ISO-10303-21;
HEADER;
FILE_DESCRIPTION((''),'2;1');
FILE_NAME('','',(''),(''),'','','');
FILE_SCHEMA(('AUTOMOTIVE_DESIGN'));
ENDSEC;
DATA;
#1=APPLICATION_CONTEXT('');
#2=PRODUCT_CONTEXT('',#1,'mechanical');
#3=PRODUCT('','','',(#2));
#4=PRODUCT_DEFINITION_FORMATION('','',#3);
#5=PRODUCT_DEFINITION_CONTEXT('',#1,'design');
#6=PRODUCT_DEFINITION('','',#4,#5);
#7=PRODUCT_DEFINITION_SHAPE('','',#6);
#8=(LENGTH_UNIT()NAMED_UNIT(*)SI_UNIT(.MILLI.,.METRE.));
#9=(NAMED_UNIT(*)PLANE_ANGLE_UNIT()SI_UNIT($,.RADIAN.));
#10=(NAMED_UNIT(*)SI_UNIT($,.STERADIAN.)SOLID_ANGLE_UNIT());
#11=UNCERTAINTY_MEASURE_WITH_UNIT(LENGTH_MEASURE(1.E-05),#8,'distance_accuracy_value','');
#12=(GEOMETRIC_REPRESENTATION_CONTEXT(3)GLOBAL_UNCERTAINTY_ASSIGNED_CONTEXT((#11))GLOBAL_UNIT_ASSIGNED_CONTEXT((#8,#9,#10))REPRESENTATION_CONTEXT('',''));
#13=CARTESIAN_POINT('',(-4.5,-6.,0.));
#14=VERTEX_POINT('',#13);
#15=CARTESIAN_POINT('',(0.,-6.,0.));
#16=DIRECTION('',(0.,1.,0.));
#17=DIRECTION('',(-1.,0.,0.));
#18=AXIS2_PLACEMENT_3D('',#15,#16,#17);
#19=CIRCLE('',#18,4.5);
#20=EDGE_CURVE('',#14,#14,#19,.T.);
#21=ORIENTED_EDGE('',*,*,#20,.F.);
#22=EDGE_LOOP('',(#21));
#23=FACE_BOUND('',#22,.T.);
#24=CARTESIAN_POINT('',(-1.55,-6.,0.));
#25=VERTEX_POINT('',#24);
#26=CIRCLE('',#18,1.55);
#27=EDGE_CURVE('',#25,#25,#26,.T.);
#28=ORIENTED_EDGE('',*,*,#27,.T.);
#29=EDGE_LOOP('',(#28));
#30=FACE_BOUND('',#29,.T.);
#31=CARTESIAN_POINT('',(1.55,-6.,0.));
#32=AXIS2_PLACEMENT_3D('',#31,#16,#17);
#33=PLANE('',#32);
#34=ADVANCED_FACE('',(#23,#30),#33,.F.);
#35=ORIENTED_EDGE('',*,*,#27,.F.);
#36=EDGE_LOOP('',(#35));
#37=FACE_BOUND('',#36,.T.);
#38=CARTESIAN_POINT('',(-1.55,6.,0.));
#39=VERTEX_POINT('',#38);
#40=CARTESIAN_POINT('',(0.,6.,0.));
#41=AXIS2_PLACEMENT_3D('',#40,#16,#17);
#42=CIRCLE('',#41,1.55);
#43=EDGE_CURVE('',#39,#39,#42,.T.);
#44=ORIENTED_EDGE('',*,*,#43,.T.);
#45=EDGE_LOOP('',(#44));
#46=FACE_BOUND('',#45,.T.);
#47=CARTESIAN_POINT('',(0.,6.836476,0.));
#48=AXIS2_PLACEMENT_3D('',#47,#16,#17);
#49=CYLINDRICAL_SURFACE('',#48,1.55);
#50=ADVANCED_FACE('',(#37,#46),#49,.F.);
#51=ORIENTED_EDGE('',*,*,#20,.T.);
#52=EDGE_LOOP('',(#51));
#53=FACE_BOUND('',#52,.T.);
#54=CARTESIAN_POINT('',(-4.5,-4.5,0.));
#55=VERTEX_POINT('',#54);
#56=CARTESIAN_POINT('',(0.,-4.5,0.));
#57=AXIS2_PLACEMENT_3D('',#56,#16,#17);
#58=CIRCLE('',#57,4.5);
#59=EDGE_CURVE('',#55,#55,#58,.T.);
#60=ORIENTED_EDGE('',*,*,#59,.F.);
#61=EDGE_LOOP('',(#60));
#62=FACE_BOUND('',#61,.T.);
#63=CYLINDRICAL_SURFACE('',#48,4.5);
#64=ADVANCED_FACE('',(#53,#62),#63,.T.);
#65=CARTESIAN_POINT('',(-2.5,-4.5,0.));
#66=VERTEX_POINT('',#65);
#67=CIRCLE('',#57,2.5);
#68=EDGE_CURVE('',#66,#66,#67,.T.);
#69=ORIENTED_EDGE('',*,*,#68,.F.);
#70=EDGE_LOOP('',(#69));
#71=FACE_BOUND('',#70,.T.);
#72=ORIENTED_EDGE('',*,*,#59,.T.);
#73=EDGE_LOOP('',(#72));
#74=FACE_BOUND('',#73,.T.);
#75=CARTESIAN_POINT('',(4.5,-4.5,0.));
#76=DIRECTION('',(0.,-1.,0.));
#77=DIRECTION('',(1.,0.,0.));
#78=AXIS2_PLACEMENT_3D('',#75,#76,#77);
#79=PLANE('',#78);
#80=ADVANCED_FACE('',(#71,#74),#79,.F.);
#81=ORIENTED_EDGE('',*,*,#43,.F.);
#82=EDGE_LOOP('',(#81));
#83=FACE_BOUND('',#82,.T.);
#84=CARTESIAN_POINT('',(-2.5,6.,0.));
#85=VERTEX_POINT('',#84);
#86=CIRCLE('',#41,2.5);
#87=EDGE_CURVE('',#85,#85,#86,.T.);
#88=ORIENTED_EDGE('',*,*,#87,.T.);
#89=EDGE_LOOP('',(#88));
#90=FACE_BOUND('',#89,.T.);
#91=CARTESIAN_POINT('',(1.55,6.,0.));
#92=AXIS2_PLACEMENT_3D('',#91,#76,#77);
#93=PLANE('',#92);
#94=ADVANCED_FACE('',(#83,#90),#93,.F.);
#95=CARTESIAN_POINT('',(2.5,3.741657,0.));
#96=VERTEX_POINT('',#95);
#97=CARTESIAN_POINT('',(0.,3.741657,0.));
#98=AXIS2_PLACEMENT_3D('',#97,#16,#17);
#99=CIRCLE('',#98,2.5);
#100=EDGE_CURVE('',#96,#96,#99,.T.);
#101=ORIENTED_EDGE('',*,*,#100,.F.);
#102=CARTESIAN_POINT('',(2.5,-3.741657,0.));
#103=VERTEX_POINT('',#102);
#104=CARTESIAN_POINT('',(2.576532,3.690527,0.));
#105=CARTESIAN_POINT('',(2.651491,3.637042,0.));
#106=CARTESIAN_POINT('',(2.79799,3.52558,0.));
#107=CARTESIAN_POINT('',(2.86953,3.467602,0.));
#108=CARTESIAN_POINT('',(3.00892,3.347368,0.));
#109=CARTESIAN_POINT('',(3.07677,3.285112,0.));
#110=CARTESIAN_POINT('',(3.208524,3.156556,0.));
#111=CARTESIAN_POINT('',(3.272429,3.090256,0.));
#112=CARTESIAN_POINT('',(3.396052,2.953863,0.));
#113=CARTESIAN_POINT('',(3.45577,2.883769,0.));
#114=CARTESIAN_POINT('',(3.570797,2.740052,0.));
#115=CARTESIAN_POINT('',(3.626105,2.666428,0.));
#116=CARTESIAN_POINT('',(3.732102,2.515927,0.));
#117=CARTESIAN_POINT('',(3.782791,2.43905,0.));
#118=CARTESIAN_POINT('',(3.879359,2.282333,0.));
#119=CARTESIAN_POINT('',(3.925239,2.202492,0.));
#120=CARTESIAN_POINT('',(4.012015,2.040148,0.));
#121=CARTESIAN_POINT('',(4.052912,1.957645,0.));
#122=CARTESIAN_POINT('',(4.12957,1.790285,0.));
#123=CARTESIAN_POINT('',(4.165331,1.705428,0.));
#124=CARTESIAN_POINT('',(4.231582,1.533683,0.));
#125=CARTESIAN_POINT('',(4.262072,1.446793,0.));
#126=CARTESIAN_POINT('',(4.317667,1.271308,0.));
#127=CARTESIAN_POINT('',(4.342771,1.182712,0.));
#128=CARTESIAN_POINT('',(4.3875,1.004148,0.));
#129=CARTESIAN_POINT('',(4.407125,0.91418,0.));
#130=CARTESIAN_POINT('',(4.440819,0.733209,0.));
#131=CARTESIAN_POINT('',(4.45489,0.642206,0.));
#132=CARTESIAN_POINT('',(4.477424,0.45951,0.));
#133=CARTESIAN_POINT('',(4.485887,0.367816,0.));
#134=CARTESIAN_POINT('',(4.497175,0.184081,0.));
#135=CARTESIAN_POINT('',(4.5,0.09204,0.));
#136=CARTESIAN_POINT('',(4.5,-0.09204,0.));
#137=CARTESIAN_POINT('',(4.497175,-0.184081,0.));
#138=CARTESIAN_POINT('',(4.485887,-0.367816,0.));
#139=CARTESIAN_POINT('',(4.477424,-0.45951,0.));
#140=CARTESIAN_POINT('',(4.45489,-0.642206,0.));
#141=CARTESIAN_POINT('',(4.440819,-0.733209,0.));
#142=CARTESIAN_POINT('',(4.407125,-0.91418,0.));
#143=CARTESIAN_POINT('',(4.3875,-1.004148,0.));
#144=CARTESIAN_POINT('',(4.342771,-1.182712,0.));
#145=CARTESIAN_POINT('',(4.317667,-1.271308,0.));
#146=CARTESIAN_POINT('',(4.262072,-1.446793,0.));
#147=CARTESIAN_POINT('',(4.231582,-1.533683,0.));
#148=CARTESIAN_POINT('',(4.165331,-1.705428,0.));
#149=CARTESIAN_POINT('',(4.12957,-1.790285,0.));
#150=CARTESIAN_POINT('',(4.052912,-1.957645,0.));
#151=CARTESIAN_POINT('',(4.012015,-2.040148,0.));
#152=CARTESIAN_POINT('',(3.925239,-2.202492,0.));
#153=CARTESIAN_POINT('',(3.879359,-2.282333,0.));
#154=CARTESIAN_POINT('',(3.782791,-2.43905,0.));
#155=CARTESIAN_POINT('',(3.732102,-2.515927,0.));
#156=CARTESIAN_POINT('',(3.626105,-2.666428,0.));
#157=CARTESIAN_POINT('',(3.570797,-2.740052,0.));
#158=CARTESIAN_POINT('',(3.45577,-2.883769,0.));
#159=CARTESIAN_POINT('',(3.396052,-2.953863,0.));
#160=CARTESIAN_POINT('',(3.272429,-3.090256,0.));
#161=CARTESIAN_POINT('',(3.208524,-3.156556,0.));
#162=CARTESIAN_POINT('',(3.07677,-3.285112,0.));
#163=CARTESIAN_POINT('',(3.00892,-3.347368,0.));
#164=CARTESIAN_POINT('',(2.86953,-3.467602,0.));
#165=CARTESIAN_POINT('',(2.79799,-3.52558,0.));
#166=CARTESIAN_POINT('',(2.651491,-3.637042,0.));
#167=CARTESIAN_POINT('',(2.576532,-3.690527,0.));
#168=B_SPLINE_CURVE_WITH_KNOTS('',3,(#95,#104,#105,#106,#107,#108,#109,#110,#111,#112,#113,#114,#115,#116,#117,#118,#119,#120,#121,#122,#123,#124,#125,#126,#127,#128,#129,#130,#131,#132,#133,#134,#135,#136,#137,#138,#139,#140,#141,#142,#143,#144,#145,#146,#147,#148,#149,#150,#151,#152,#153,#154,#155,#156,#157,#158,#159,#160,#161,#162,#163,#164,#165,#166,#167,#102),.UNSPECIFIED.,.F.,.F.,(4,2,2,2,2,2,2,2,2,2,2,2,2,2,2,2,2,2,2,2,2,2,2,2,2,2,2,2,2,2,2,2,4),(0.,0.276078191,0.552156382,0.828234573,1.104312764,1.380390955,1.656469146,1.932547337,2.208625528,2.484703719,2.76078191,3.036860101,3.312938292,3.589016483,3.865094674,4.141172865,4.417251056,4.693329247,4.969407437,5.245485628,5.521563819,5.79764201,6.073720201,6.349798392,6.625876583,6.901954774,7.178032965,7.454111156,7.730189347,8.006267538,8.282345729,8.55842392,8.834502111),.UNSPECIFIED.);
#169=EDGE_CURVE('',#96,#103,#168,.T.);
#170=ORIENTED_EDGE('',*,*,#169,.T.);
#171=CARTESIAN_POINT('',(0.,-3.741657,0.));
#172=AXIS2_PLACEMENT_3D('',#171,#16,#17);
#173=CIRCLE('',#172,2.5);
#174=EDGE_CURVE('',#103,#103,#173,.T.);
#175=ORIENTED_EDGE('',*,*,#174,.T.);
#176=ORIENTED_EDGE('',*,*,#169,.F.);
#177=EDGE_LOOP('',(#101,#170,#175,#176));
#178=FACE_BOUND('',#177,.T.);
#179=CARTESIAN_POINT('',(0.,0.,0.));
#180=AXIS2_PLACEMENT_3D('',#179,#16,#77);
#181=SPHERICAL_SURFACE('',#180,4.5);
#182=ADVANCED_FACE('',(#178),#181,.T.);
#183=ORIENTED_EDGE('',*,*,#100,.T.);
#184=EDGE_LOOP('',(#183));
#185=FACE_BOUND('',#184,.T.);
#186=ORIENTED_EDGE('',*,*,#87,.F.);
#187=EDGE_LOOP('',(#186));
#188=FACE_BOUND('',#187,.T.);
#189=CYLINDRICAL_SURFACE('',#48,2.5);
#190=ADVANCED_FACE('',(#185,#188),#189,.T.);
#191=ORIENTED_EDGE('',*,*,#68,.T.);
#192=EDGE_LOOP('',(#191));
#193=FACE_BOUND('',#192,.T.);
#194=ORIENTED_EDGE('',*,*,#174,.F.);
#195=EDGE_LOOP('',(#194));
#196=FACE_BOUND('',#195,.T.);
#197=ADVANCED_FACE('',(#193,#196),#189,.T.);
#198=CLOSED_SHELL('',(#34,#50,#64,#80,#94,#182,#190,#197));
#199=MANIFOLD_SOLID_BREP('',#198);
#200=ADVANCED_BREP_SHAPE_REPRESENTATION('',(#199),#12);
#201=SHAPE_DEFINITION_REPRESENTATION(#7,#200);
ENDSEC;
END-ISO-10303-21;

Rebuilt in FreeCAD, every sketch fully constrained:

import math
import FreeCAD as App
import Part
import Sketcher

V = App.Vector
Q = App.Units.Quantity

doc = App.newDocument("Part")
body = doc.addObject("PartDesign::Body", "Body")

# Sketch on XY plane
sketch1 = body.newObject("Sketcher::SketchObject", "Sketch")
sketch1.AttachmentSupport = (doc.getObject("XY_Plane"), [""])
sketch1.MapMode = "FlatFace"
sketch1.addGeometry([
    Part.LineSegment(V(1.6, -6, 0), V(4.5, -6, 0)),  # 0
    Part.LineSegment(V(4.5, -6, 0), V(4.5, -4.5, 0)),  # 1
    Part.LineSegment(V(4.5, -4.5, 0), V(2.5, -4.5, 0)),  # 2
    Part.LineSegment(V(2.5, -4.5, 0), V(2.5, -3.7, 0)),  # 3
    Part.ArcOfCircle(Part.Circle(V(0, 0, 0), V(0, 0, 1), 4.5), math.radians(-56), math.radians(56)),  # 4
    Part.LineSegment(V(2.5, 3.7, 0), V(2.5, 6, 0)),  # 5
    Part.LineSegment(V(2.5, 6, 0), V(1.6, 6, 0)),  # 6
    Part.LineSegment(V(1.6, 6, 0), V(1.6, -6, 0)),  # 7
], False)
sketch1.addConstraint([
    Sketcher.Constraint("Coincident", 0, 2, 1, 1),
    Sketcher.Constraint("Coincident", 1, 2, 2, 1),
    Sketcher.Constraint("Coincident", 2, 2, 3, 1),
    Sketcher.Constraint("Coincident", 3, 2, 4, 1),
    Sketcher.Constraint("Coincident", 4, 2, 5, 1),
    Sketcher.Constraint("Coincident", 5, 2, 6, 1),
    Sketcher.Constraint("Coincident", 6, 2, 7, 1),
    Sketcher.Constraint("Coincident", 7, 2, 0, 1),
    Sketcher.Constraint("Horizontal", 0),
    Sketcher.Constraint("Vertical", 1),
    Sketcher.Constraint("Horizontal", 2),
    Sketcher.Constraint("Vertical", 3),
    Sketcher.Constraint("Vertical", 5),
    Sketcher.Constraint("Horizontal", 6),
    Sketcher.Constraint("Vertical", 7),
    Sketcher.Constraint("Coincident", 4, 3, -1, 1),
    Sketcher.Constraint("Vertical", 3, 2, 4, 2),
    Sketcher.Constraint("Radius", 4, Q("4.5 mm")),
    Sketcher.Constraint("DistanceX", 2, 2, 2, 1, Q("2 mm")),
    Sketcher.Constraint("DistanceY", 7, 2, 7, 1, Q("12 mm")),
    Sketcher.Constraint("DistanceY", 1, 1, 1, 2, Q("1.5 mm")),
    Sketcher.Constraint("DistanceY", 0, 2, -1, 1, Q("6 mm")),
    Sketcher.Constraint("DistanceX", 0, 1, 0, 2, Q("2.95 mm")),
    Sketcher.Constraint("DistanceX", -1, 1, 0, 2, Q("4.5 mm")),
])
revolution = body.newObject("PartDesign::Revolution", "Revolution")
revolution.Profile = sketch1
revolution.ReferenceAxis = (sketch1, ["V_Axis"])
revolution.Angle = 360

doc.recompute()
